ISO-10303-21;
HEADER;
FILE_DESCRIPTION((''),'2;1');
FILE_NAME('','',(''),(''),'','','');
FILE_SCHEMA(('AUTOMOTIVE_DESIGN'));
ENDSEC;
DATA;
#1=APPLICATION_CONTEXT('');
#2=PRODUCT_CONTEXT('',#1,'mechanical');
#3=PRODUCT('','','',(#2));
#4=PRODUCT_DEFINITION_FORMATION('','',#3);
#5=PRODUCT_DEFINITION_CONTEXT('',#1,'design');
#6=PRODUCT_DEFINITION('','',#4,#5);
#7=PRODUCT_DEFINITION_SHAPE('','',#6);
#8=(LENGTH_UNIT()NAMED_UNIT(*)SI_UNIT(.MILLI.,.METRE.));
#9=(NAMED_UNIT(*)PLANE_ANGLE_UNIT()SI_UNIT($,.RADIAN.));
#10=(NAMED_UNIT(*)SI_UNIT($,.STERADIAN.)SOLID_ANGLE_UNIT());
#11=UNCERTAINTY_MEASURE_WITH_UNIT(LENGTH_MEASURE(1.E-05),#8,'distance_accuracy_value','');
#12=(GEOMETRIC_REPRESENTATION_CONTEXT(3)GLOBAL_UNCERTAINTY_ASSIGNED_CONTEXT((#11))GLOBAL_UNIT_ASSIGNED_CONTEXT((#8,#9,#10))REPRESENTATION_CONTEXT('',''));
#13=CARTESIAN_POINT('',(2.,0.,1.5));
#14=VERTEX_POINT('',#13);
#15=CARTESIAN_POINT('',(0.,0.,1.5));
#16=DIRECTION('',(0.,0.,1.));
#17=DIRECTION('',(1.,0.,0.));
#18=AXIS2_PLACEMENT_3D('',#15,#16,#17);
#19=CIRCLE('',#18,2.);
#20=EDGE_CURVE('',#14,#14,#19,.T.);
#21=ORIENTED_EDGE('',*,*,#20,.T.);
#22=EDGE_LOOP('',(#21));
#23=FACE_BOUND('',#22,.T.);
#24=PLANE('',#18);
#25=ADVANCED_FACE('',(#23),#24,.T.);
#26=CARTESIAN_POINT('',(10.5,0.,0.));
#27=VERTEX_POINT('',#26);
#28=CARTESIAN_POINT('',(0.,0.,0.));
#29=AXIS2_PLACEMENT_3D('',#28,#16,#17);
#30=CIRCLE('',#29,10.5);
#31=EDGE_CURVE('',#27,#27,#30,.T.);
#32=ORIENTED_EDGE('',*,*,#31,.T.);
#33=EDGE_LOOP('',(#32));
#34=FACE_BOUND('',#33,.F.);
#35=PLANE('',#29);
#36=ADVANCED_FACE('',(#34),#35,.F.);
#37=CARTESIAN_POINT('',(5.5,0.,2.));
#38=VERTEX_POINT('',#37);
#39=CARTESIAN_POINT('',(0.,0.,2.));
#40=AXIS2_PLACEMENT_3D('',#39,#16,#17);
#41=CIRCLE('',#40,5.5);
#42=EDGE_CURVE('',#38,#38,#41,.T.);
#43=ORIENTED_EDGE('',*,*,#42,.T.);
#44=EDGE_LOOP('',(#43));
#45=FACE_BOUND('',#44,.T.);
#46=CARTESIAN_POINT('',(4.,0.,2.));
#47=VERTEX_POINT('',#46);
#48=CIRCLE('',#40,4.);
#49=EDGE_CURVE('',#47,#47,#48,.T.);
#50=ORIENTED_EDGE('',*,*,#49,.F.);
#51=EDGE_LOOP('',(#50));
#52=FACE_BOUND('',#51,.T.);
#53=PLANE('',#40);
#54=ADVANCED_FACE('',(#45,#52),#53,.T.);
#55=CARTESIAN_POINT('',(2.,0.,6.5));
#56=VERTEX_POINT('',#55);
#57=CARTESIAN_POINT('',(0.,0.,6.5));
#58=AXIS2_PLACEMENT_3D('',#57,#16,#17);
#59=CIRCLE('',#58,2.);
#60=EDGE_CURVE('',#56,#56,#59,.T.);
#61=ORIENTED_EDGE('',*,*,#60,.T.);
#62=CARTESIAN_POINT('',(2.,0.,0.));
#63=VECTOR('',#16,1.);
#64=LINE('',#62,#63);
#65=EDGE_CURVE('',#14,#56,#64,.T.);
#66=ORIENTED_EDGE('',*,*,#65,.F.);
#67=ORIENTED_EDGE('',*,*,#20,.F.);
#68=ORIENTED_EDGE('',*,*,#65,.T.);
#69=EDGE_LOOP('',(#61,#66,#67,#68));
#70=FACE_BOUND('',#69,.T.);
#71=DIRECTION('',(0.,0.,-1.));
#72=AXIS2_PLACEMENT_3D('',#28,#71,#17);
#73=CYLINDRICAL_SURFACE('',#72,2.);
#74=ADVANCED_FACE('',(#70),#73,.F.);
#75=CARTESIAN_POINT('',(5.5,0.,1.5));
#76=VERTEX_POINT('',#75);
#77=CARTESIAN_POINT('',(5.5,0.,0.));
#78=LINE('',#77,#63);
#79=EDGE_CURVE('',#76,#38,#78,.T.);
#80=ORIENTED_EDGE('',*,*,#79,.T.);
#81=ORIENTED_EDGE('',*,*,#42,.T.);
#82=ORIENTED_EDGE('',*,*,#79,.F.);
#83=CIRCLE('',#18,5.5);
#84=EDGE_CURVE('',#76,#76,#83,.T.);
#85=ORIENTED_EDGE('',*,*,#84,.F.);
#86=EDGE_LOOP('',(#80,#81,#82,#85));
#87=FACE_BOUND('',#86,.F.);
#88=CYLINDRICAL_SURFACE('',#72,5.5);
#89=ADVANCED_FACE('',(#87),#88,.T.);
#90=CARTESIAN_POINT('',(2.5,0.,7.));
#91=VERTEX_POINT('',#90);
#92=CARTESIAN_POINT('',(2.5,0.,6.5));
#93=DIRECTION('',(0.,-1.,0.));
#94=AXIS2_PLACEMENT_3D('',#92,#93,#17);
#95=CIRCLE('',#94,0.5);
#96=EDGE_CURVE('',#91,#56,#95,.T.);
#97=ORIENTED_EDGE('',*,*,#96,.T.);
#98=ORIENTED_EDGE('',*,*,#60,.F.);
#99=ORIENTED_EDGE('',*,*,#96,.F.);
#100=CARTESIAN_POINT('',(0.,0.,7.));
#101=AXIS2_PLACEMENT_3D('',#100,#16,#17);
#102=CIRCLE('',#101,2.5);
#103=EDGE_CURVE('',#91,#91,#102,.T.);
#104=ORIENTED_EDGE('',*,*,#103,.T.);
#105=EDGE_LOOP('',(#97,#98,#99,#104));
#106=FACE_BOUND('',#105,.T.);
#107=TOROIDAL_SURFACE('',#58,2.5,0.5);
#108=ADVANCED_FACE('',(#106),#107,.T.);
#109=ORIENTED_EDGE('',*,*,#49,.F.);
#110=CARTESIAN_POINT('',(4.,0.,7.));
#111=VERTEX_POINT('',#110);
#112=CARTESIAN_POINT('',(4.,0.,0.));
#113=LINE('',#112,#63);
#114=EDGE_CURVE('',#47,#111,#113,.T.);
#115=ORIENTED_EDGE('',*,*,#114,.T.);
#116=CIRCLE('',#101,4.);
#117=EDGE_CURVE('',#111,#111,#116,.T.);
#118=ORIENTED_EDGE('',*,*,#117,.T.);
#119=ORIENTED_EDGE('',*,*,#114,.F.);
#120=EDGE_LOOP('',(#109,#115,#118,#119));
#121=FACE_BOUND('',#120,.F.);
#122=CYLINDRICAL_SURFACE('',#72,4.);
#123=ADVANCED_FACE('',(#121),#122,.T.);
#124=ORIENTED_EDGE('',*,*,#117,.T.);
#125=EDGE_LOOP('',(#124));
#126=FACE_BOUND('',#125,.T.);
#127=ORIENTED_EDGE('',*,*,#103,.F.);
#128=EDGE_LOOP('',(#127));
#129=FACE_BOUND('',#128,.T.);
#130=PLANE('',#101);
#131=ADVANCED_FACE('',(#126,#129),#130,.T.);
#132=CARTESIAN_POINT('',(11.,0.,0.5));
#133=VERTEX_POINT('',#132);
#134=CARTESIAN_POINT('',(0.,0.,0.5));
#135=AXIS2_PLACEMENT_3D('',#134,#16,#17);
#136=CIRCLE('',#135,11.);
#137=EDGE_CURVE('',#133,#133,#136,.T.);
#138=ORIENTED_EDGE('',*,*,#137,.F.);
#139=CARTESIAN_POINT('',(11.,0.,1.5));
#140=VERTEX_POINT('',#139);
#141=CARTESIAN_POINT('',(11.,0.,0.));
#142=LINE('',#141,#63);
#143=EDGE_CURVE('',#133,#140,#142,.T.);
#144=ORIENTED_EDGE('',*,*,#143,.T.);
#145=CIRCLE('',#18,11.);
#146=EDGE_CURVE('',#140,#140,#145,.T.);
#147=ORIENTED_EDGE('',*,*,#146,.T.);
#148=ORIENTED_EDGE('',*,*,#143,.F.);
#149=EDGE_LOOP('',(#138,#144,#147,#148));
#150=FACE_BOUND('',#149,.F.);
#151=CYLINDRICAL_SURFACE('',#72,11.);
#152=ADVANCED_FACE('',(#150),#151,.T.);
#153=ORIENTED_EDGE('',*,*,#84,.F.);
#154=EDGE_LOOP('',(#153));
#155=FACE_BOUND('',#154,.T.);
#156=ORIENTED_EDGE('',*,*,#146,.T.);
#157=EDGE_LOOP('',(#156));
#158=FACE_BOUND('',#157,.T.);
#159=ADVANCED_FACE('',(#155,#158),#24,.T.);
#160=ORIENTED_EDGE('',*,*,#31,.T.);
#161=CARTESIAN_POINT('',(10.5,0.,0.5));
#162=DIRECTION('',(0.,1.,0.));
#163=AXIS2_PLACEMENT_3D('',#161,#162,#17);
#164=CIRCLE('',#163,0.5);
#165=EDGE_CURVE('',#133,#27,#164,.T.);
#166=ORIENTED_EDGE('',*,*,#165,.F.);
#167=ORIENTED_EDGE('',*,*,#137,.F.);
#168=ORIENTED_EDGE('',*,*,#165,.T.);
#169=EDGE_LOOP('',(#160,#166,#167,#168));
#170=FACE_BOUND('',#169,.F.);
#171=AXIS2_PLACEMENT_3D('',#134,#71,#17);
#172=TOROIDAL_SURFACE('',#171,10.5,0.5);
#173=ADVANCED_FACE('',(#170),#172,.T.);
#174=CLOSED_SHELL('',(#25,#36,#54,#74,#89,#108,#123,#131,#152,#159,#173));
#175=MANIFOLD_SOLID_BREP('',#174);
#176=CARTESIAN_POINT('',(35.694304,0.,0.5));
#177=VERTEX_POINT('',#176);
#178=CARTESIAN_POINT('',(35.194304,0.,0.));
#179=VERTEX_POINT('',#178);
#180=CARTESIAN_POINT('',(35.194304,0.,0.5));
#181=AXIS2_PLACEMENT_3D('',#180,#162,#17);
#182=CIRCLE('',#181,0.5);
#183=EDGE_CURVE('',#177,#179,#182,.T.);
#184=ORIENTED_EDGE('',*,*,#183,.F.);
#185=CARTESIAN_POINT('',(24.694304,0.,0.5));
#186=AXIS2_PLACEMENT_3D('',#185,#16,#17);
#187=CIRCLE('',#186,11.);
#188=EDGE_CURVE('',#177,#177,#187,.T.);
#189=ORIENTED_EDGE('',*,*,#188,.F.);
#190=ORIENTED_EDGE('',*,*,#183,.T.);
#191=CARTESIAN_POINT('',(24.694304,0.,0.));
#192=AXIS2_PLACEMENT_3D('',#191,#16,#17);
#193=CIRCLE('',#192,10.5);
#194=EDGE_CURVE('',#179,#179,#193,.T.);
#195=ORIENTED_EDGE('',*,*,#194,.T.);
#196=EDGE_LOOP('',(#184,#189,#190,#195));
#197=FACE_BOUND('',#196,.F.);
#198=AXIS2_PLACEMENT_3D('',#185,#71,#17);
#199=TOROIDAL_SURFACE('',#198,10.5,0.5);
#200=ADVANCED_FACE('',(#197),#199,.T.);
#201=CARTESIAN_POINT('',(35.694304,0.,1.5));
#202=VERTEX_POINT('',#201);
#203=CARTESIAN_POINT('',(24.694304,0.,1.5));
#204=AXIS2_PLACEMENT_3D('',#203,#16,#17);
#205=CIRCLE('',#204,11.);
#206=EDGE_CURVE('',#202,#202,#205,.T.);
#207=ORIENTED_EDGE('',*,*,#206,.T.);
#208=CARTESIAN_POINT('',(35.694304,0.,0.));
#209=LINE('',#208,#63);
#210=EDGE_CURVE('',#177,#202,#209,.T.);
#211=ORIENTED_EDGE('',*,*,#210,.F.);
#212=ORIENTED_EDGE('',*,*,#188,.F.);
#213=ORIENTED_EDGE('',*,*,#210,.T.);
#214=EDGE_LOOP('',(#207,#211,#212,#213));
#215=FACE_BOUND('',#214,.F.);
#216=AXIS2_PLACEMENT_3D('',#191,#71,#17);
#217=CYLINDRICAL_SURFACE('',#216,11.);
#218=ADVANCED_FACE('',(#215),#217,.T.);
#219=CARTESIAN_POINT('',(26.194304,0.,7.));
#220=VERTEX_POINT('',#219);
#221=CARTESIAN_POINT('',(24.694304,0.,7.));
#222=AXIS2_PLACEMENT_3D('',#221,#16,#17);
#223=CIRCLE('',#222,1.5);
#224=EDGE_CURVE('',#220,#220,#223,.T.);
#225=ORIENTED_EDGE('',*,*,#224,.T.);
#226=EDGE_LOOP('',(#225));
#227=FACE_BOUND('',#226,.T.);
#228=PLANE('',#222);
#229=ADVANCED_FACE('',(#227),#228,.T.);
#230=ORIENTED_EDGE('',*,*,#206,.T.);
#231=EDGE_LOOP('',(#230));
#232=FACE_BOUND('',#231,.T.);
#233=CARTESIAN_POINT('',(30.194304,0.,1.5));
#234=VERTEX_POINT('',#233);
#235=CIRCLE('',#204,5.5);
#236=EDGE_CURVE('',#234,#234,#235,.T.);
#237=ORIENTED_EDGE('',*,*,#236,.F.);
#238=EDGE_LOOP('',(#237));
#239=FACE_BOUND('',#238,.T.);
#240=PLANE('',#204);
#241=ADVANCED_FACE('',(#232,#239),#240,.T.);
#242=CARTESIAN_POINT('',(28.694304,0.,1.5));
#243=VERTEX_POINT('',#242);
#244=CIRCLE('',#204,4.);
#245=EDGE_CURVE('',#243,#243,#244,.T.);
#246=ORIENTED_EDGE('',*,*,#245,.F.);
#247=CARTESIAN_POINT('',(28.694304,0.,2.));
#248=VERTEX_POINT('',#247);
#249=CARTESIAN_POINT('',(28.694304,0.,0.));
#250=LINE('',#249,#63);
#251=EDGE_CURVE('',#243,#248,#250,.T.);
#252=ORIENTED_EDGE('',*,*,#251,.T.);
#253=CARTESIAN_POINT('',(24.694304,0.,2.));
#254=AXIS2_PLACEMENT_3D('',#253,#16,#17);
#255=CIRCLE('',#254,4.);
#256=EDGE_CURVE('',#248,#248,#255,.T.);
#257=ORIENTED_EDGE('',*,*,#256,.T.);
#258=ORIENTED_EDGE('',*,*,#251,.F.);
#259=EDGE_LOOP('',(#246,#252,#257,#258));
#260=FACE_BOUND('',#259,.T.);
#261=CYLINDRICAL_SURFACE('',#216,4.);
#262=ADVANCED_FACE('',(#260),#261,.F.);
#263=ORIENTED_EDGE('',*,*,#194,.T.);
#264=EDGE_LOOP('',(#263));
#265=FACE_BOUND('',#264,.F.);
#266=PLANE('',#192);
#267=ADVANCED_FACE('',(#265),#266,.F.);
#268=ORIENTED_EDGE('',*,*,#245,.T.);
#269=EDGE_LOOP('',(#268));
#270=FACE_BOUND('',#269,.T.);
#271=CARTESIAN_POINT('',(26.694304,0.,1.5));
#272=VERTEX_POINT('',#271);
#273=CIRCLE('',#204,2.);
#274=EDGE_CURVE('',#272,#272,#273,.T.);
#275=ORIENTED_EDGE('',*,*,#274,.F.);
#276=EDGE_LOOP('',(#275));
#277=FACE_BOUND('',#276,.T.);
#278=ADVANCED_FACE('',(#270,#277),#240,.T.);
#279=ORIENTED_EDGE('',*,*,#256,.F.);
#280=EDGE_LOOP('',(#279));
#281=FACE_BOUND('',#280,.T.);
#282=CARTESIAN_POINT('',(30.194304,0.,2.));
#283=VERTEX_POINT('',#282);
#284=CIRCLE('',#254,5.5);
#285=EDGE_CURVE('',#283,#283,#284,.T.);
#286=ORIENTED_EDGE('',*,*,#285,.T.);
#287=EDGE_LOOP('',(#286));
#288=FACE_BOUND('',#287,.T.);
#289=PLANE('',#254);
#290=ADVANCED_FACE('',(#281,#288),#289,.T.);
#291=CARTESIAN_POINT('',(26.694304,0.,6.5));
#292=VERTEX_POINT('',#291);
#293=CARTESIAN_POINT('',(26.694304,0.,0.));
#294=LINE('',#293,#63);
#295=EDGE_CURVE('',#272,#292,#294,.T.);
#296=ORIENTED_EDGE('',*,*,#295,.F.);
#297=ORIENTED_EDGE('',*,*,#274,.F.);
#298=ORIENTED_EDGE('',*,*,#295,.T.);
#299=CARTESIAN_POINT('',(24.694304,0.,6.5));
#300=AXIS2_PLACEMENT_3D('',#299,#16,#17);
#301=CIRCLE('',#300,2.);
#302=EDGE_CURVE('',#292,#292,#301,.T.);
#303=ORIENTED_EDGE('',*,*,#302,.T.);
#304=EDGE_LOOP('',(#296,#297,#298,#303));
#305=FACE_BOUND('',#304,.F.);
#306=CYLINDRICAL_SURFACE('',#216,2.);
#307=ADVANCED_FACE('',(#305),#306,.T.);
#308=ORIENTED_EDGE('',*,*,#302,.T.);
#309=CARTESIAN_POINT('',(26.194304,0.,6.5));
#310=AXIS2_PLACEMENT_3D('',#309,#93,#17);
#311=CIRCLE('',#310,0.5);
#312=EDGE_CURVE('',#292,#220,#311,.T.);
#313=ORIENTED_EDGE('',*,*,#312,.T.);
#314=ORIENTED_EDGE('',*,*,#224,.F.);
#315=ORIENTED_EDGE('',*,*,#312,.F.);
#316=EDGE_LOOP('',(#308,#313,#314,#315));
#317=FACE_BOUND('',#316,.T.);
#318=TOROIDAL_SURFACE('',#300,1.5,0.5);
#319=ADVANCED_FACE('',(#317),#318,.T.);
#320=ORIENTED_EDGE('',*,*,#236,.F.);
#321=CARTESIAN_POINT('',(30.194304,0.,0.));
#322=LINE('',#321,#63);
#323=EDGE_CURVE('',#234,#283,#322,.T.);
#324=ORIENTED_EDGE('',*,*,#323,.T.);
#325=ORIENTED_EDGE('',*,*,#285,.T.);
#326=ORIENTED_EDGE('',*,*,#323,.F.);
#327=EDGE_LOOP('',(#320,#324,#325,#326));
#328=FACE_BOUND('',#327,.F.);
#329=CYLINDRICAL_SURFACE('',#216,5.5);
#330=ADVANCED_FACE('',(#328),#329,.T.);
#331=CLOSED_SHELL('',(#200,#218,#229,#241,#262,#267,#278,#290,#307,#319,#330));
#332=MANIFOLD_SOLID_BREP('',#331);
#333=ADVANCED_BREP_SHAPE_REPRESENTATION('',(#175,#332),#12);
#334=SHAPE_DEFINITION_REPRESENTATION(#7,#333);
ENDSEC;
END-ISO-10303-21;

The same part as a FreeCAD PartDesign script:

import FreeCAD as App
import Part
import Sketcher

V = App.Vector


def edges_at(feature, points):
    """Names of the edges that pass closest to the given points."""
    edges = feature.Shape.Edges
    near = lambda p: min(range(len(edges)), key=lambda i: edges[i].distToShape(Part.Vertex(*p))[0])
    return sorted({f"Edge{near(p) + 1}" for p in points})

doc = App.newDocument("Part")
params = doc.addObject("Spreadsheet::Sheet", "Params")
for row, (alias, value) in enumerate([
    ("sketch1_diameter", "22 mm"),
    ("sketch1_diameter2", "11 mm"),
    ("pad1_length", "1.5 mm"),
    ("sketch2_diameter", "11 mm"),
    ("sketch2_diameter2", "8 mm"),
    ("pad2_length", "2 mm"),
    ("sketch3_diameter", "8 mm"),
    ("sketch3_diameter2", "4 mm"),
    ("pad3_length", "7 mm"),
    ("sketch4_diameter", "4 mm"),
    ("pad4_length", "1.5 mm"),
    ("fillet_radius", "0.5 mm"),
    ("fillet2_radius", "0.5 mm"),
    ("sketch5_diameter", "22 mm"),
    ("sketch5_diameter2", "11 mm"),
    ("pad5_length", "1.5 mm"),
    ("sketch6_diameter", "11 mm"),
    ("sketch6_diameter2", "8 mm"),
    ("pad6_length", "2 mm"),
    ("sketch7_diameter", "4 mm"),
    ("pad7_length", "7 mm"),
    ("sketch8_diameter", "8 mm"),
    ("sketch8_diameter2", "4 mm"),
    ("pad8_length", "1.5 mm"),
    ("fillet3_radius", "0.5 mm"),
    ("fillet4_radius", "0.5 mm"),
], start=1):
    params.set(f"A{row}", alias)
    params.set(f"B{row}", "=" + value)
    params.setAlias(f"B{row}", alias)

body = doc.addObject("PartDesign::Body", "Body")

sketch1 = body.newObject("Sketcher::SketchObject", "Sketch")
sketch1.AttachmentSupport = (doc.getObject("XY_Plane"), [""])
sketch1.MapMode = "FlatFace"
sketch1.addGeometry(Part.Circle(V(0, 0, 0), V(0, 0, 1), 11), False)
sketch1.addGeometry(Part.Circle(V(0, 0, 0), V(0, 0, 1), 5.5), False)
sketch1.addConstraint(Sketcher.Constraint("Coincident", 0, 3, -1, 1))
sketch1.addConstraint(Sketcher.Constraint("Coincident", 1, 3, -1, 1))
sketch1.addConstraint(Sketcher.Constraint("Diameter", 0, 22.0))
sketch1.addConstraint(Sketcher.Constraint("Diameter", 1, 11.0))
sketch1.setExpression("Constraints[2]", "Params.sketch1_diameter")
sketch1.setExpression("Constraints[3]", "Params.sketch1_diameter2")
pad1 = body.newObject("PartDesign::Pad", "Pad")
pad1.Profile = sketch1
pad1.setExpression("Length", "Params.pad1_length")

sketch2 = body.newObject("Sketcher::SketchObject", "Sketch001")
sketch2.AttachmentSupport = (doc.getObject("XY_Plane"), [""])
sketch2.MapMode = "FlatFace"
sketch2.addGeometry(Part.Circle(V(0, 0, 0), V(0, 0, 1), 5.5), False)
sketch2.addGeometry(Part.Circle(V(0, 0, 0), V(0, 0, 1), 4), False)
sketch2.addConstraint(Sketcher.Constraint("Coincident", 0, 3, -1, 1))
sketch2.addConstraint(Sketcher.Constraint("Coincident", 1, 3, -1, 1))
sketch2.addConstraint(Sketcher.Constraint("Diameter", 0, 11.0))
sketch2.addConstraint(Sketcher.Constraint("Diameter", 1, 8.0))
sketch2.setExpression("Constraints[2]", "Params.sketch2_diameter")
sketch2.setExpression("Constraints[3]", "Params.sketch2_diameter2")
pad2 = body.newObject("PartDesign::Pad", "Pad001")
pad2.Profile = sketch2
pad2.setExpression("Length", "Params.pad2_length")

sketch3 = body.newObject("Sketcher::SketchObject", "Sketch002")
sketch3.AttachmentSupport = (doc.getObject("XY_Plane"), [""])
sketch3.MapMode = "FlatFace"
sketch3.addGeometry(Part.Circle(V(0, 0, 0), V(0, 0, 1), 4), False)
sketch3.addGeometry(Part.Circle(V(0, 0, 0), V(0, 0, 1), 2), False)
sketch3.addConstraint(Sketcher.Constraint("Coincident", 0, 3, -1, 1))
sketch3.addConstraint(Sketcher.Constraint("Coincident", 1, 3, -1, 1))
sketch3.addConstraint(Sketcher.Constraint("Diameter", 0, 8.0))
sketch3.addConstraint(Sketcher.Constraint("Diameter", 1, 4.0))
sketch3.setExpression("Constraints[2]", "Params.sketch3_diameter")
sketch3.setExpression("Constraints[3]", "Params.sketch3_diameter2")
pad3 = body.newObject("PartDesign::Pad", "Pad002")
pad3.Profile = sketch3
pad3.setExpression("Length", "Params.pad3_length")

sketch4 = body.newObject("Sketcher::SketchObject", "Sketch003")
sketch4.AttachmentSupport = (doc.getObject("XY_Plane"), [""])
sketch4.MapMode = "FlatFace"
sketch4.addGeometry(Part.Circle(V(0, 0, 0), V(0, 0, 1), 2), False)
sketch4.addConstraint(Sketcher.Constraint("Coincident", 0, 3, -1, 1))
sketch4.addConstraint(Sketcher.Constraint("Diameter", 0, 4.0))
sketch4.setExpression("Constraints[1]", "Params.sketch4_diameter")
pad4 = body.newObject("PartDesign::Pad", "Pad003")
pad4.Profile = sketch4
pad4.setExpression("Length", "Params.pad4_length")
doc.recompute()

fillet = body.newObject("PartDesign::Fillet", "Fillet")
fillet.Base = (pad4, edges_at(pad4, [(-2, 0, 7)]))
fillet.setExpression("Radius", "Params.fillet_radius")
doc.recompute()

fillet2 = body.newObject("PartDesign::Fillet", "Fillet001")
fillet2.Base = (fillet, edges_at(fillet, [(-11, 0, 0)]))
fillet2.setExpression("Radius", "Params.fillet2_radius")
body2 = doc.addObject("PartDesign::Body", "Body001")

sketch5 = body2.newObject("Sketcher::SketchObject", "Sketch004")
sketch5.AttachmentSupport = (doc.getObject("XY_Plane001"), [""])
sketch5.MapMode = "FlatFace"
sketch5.addGeometry(Part.Circle(V(24.694304, 0, 0), V(0, 0, 1), 11), False)
sketch5.addGeometry(Part.Circle(V(24.694304, 0, 0), V(0, 0, 1), 5.5), False)
sketch5.addConstraint(Sketcher.Constraint("Coincident", 1, 3, 0, 3))
sketch5.addConstraint(Sketcher.Constraint("PointOnObject", 0, 3, -1))
sketch5.addConstraint(Sketcher.Constraint("Diameter", 0, 22.0))
sketch5.addConstraint(Sketcher.Constraint("Diameter", 1, 11.0))
sketch5.addConstraint(Sketcher.Constraint("DistanceX", -1, 1, 0, 3, 24.694304))
sketch5.setExpression("Constraints[2]", "Params.sketch5_diameter")
sketch5.setExpression("Constraints[3]", "Params.sketch5_diameter2")
pad5 = body2.newObject("PartDesign::Pad", "Pad004")
pad5.Profile = sketch5
pad5.setExpression("Length", "Params.pad5_length")

sketch6 = body2.newObject("Sketcher::SketchObject", "Sketch005")
sketch6.AttachmentSupport = (doc.getObject("XY_Plane001"), [""])
sketch6.MapMode = "FlatFace"
sketch6.addGeometry(Part.Circle(V(24.694304, 0, 0), V(0, 0, 1), 5.5), False)
sketch6.addGeometry(Part.Circle(V(24.694304, 0, 0), V(0, 0, 1), 4), False)
sketch6.addConstraint(Sketcher.Constraint("Coincident", 1, 3, 0, 3))
sketch6.addConstraint(Sketcher.Constraint("PointOnObject", 0, 3, -1))
sketch6.addConstraint(Sketcher.Constraint("Diameter", 0, 11.0))
sketch6.addConstraint(Sketcher.Constraint("Diameter", 1, 8.0))
sketch6.addConstraint(Sketcher.Constraint("DistanceX", -1, 1, 0, 3, 24.694304))
sketch6.setExpression("Constraints[2]", "Params.sketch6_diameter")
sketch6.setExpression("Constraints[3]", "Params.sketch6_diameter2")
pad6 = body2.newObject("PartDesign::Pad", "Pad005")
pad6.Profile = sketch6
pad6.setExpression("Length", "Params.pad6_length")
body3 = doc.addObject("PartDesign::Body", "Body002")

sketch7 = body3.newObject("Sketcher::SketchObject", "Sketch006")
sketch7.AttachmentSupport = (doc.getObject("XY_Plane002"), [""])
sketch7.MapMode = "FlatFace"
sketch7.addGeometry(Part.Circle(V(24.694304, 0, 0), V(0, 0, 1), 2), False)
sketch7.addConstraint(Sketcher.Constraint("PointOnObject", 0, 3, -1))
sketch7.addConstraint(Sketcher.Constraint("Diameter", 0, 4.0))
sketch7.addConstraint(Sketcher.Constraint("DistanceX", -1, 1, 0, 3, 24.694304))
sketch7.setExpression("Constraints[1]", "Params.sketch7_diameter")
pad7 = body3.newObject("PartDesign::Pad", "Pad006")
pad7.Profile = sketch7
pad7.setExpression("Length", "Params.pad7_length")
body2.AllowCompound = True
doc.recompute()

boolean = body2.newObject("PartDesign::Boolean", "Boolean")
boolean.Type = "Fuse"
boolean.addObjects([body3])

sketch8 = body2.newObject("Sketcher::SketchObject", "Sketch007")
sketch8.AttachmentSupport = (doc.getObject("XY_Plane001"), [""])
sketch8.MapMode = "FlatFace"
sketch8.addGeometry(Part.Circle(V(24.694304, 0, 0), V(0, 0, 1), 4), False)
sketch8.addGeometry(Part.Circle(V(24.694304, 0, 0), V(0, 0, 1), 2), False)
sketch8.addConstraint(Sketcher.Constraint("Coincident", 1, 3, 0, 3))
sketch8.addConstraint(Sketcher.Constraint("PointOnObject", 0, 3, -1))
sketch8.addConstraint(Sketcher.Constraint("Diameter", 0, 8.0))
sketch8.addConstraint(Sketcher.Constraint("Diameter", 1, 4.0))
sketch8.addConstraint(Sketcher.Constraint("DistanceX", -1, 1, 0, 3, 24.694304))
sketch8.setExpression("Constraints[2]", "Params.sketch8_diameter")
sketch8.setExpression("Constraints[3]", "Params.sketch8_diameter2")
pad8 = body2.newObject("PartDesign::Pad", "Pad007")
pad8.Profile = sketch8
pad8.setExpression("Length", "Params.pad8_length")
doc.recompute()

fillet3 = body2.newObject("PartDesign::Fillet", "Fillet002")
fillet3.Base = (pad8, edges_at(pad8, [(22.694, 0, 7)]))
fillet3.setExpression("Radius", "Params.fillet3_radius")
doc.recompute()

fillet4 = body2.newObject("PartDesign::Fillet", "Fillet003")
fillet4.Base = (fillet3, edges_at(fillet3, [(13.694, 0, 0)]))
fillet4.setExpression("Radius", "Params.fillet4_radius")

doc.recompute()
